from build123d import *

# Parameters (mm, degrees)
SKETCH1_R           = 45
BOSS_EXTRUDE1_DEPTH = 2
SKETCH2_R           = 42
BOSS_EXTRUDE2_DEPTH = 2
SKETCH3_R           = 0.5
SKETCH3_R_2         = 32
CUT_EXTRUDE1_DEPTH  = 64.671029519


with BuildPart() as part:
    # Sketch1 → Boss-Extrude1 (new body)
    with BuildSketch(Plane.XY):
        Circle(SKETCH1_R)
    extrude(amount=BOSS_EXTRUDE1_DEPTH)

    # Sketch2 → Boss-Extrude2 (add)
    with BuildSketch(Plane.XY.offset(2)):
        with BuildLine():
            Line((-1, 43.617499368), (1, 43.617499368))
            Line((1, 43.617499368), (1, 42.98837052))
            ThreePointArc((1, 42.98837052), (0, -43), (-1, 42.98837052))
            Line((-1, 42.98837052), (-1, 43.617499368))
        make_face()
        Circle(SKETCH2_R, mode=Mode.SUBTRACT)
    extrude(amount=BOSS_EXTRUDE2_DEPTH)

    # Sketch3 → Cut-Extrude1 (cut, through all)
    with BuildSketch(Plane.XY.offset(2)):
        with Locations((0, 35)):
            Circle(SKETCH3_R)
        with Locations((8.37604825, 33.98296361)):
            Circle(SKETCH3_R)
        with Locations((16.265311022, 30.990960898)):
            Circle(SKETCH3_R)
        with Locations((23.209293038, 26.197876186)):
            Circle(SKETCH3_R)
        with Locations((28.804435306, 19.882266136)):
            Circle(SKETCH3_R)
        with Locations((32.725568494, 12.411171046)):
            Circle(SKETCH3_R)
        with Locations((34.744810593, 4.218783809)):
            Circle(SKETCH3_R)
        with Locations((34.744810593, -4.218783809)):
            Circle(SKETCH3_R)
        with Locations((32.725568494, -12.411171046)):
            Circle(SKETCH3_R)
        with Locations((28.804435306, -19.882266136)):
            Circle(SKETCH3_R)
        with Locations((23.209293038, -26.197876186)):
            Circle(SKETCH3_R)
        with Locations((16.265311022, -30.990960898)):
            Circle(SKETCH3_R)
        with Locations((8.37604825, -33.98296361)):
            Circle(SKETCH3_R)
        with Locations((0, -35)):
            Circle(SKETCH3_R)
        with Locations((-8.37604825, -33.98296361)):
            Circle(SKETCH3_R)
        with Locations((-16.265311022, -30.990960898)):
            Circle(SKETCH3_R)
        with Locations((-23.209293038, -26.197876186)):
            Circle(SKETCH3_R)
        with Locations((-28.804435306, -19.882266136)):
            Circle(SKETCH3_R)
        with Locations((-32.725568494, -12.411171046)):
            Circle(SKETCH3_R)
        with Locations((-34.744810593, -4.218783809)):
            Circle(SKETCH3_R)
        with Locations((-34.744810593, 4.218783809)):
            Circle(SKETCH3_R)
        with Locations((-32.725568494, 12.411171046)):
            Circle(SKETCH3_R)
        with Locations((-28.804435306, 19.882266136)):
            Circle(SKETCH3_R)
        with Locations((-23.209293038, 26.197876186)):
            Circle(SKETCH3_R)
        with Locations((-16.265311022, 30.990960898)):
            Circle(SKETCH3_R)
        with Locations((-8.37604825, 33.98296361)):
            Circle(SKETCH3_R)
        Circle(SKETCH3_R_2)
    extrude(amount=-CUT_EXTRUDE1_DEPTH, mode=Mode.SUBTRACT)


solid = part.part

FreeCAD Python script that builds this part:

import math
import FreeCAD as App
import Part
import Sketcher
from FreeCAD import Vector

doc = App.newDocument("Part")
body = doc.addObject("PartDesign::Body", "Body")

sketch1 = doc.addObject("Sketcher::SketchObject", "Sketch")
body.addObject(sketch1)
sketch1.AttachmentSupport = (doc.XY_Plane, [""])
sketch1.MapMode = "FlatFace"
sketch1.addGeometry(Part.Circle(Vector(0, 0, 0), Vector(0, 0, 1), 45), False)
sketch1.addConstraint(Sketcher.Constraint("Coincident", 0, 3, -1, 1))
sketch1.addConstraint(Sketcher.Constraint("Diameter", 0, 90.0))
pad1 = doc.addObject("PartDesign::Pad", "Pad")
body.addObject(pad1)
pad1.Profile = sketch1
pad1.Length = 2

sketch2 = doc.addObject("Sketcher::SketchObject", "Sketch001")
body.addObject(sketch2)
sketch2.AttachmentSupport = (doc.XY_Plane, [""])
sketch2.MapMode = "FlatFace"
sketch2.AttachmentOffset = App.Placement(Vector(0, 0, 2), App.Rotation())
sketch2.addGeometry(Part.LineSegment(Vector(1, 43.617499, 0), Vector(-1, 43.617499, 0)), False)
sketch2.addGeometry(Part.LineSegment(Vector(-1, 43.617499, 0), Vector(-1, 42.988371, 0)), False)
sketch2.addGeometry(Part.ArcOfCircle(Part.Circle(Vector(0, 0, 0), Vector(0, 0, 1), 43), math.radians(91.33258), math.radians(448.66742)), False)
sketch2.addGeometry(Part.LineSegment(Vector(1, 42.988371, 0), Vector(1, 43.617499, 0)), False)
sketch2.addGeometry(Part.Circle(Vector(0, 0, 0), Vector(0, 0, 1), 42), False)
sketch2.addConstraint(Sketcher.Constraint("Coincident", 0, 2, 1, 1))
sketch2.addConstraint(Sketcher.Constraint("Coincident", 1, 2, 2, 1))
sketch2.addConstraint(Sketcher.Constraint("Coincident", 2, 2, 3, 1))
sketch2.addConstraint(Sketcher.Constraint("Coincident", 3, 2, 0, 1))
sketch2.addConstraint(Sketcher.Constraint("Horizontal", 0))
sketch2.addConstraint(Sketcher.Constraint("Vertical", 1))
sketch2.addConstraint(Sketcher.Constraint("Vertical", 3))
sketch2.addConstraint(Sketcher.Constraint("Coincident", 2, 3, -1, 1))
sketch2.addConstraint(Sketcher.Constraint("Coincident", 4, 3, -1, 1))
sketch2.addConstraint(Sketcher.Constraint("Horizontal", 1, 2, 2, 2))
sketch2.addConstraint(Sketcher.Constraint("Diameter", 4, 84.0))
sketch2.addConstraint(Sketcher.Constraint("Radius", 2, 43.0))
sketch2.addConstraint(Sketcher.Constraint("DistanceX", 0, 2, 0, 1, 2.0))
sketch2.addConstraint(Sketcher.Constraint("DistanceY", 1, 2, 1, 1, 0.629129))
pad2 = doc.addObject("PartDesign::Pad", "Pad001")
body.addObject(pad2)
pad2.Profile = sketch2
pad2.Length = 2

sketch3 = doc.addObject("Sketcher::SketchObject", "Sketch002")
body.addObject(sketch3)
sketch3.AttachmentSupport = (doc.XY_Plane, [""])
sketch3.MapMode = "FlatFace"
sketch3.AttachmentOffset = App.Placement(Vector(0, 0, 2), App.Rotation())
sketch3.addGeometry(Part.Circle(Vector(0, 35, 0), Vector(0, 0, 1), 0.5), False)
sketch3.addGeometry(Part.Circle(Vector(8.376048, 33.982964, 0), Vector(0, 0, 1), 0.5), False)
sketch3.addGeometry(Part.Circle(Vector(16.265311, 30.990961, 0), Vector(0, 0, 1), 0.5), False)
sketch3.addGeometry(Part.Circle(Vector(23.209293, 26.197876, 0), Vector(0, 0, 1), 0.5), False)
sketch3.addGeometry(Part.Circle(Vector(28.804435, 19.882266, 0), Vector(0, 0, 1), 0.5), False)
sketch3.addGeometry(Part.Circle(Vector(32.725568, 12.411171, 0), Vector(0, 0, 1), 0.5), False)
sketch3.addGeometry(Part.Circle(Vector(34.744811, 4.218784, 0), Vector(0, 0, 1), 0.5), False)
sketch3.addGeometry(Part.Circle(Vector(34.744811, -4.218784, 0), Vector(0, 0, 1), 0.5), False)
sketch3.addGeometry(Part.Circle(Vector(32.725568, -12.411171, 0), Vector(0, 0, 1), 0.5), False)
sketch3.addGeometry(Part.Circle(Vector(28.804435, -19.882266, 0), Vector(0, 0, 1), 0.5), False)
sketch3.addGeometry(Part.Circle(Vector(23.209293, -26.197876, 0), Vector(0, 0, 1), 0.5), False)
sketch3.addGeometry(Part.Circle(Vector(16.265311, -30.990961, 0), Vector(0, 0, 1), 0.5), False)
sketch3.addGeometry(Part.Circle(Vector(8.376048, -33.982964, 0), Vector(0, 0, 1), 0.5), False)
sketch3.addGeometry(Part.Circle(Vector(0, -35, 0), Vector(0, 0, 1), 0.5), False)
sketch3.addGeometry(Part.Circle(Vector(-8.376048, -33.982964, 0), Vector(0, 0, 1), 0.5), False)
sketch3.addGeometry(Part.Circle(Vector(-16.265311, -30.990961, 0), Vector(0, 0, 1), 0.5), False)
sketch3.addGeometry(Part.Circle(Vector(-23.209293, -26.197876, 0), Vector(0, 0, 1), 0.5), False)
sketch3.addGeometry(Part.Circle(Vector(-28.804435, -19.882266, 0), Vector(0, 0, 1), 0.5), False)
sketch3.addGeometry(Part.Circle(Vector(-32.725568, -12.411171, 0), Vector(0, 0, 1), 0.5), False)
sketch3.addGeometry(Part.Circle(Vector(-34.744811, -4.218784, 0), Vector(0, 0, 1), 0.5), False)
sketch3.addGeometry(Part.Circle(Vector(-34.744811, 4.218784, 0), Vector(0, 0, 1), 0.5), False)
sketch3.addGeometry(Part.Circle(Vector(-32.725568, 12.411171, 0), Vector(0, 0, 1), 0.5), False)
sketch3.addGeometry(Part.Circle(Vector(-28.804435, 19.882266, 0), Vector(0, 0, 1), 0.5), False)
sketch3.addGeometry(Part.Circle(Vector(-23.209293, 26.197876, 0), Vector(0, 0, 1), 0.5), False)
sketch3.addGeometry(Part.Circle(Vector(-16.265311, 30.990961, 0), Vector(0, 0, 1), 0.5), False)
sketch3.addGeometry(Part.Circle(Vector(-8.376048, 33.982964, 0), Vector(0, 0, 1), 0.5), False)
sketch3.addGeometry(Part.Circle(Vector(0, 0, 0), Vector(0, 0, 1), 32), False)
sketch3.addConstraint(Sketcher.Constraint("Coincident", 26, 3, -1, 1))
sketch3.addConstraint(Sketcher.Constraint("Equal", 0, 1))
sketch3.addConstraint(Sketcher.Constraint("Equal", 1, 2))
sketch3.addConstraint(Sketcher.Constraint("Equal", 2, 3))
sketch3.addConstraint(Sketcher.Constraint("Equal", 3, 4))
sketch3.addConstraint(Sketcher.Constraint("Equal", 4, 5))
sketch3.addConstraint(Sketcher.Constraint("Equal", 5, 6))
sketch3.addConstraint(Sketcher.Constraint("Equal", 6, 7))
sketch3.addConstraint(Sketcher.Constraint("Equal", 7, 8))
sketch3.addConstraint(Sketcher.Constraint("Equal", 8, 9))
sketch3.addConstraint(Sketcher.Constraint("Equal", 9, 10))
sketch3.addConstraint(Sketcher.Constraint("Equal", 10, 11))
sketch3.addConstraint(Sketcher.Constraint("Equal", 11, 12))
sketch3.addConstraint(Sketcher.Constraint("Equal", 12, 13))
sketch3.addConstraint(Sketcher.Constraint("Equal", 13, 14))
sketch3.addConstraint(Sketcher.Constraint("Equal", 14, 15))
sketch3.addConstraint(Sketcher.Constraint("Equal", 15, 16))
sketch3.addConstraint(Sketcher.Constraint("Equal", 16, 17))
sketch3.addConstraint(Sketcher.Constraint("Equal", 17, 18))
sketch3.addConstraint(Sketcher.Constraint("Equal", 18, 19))
sketch3.addConstraint(Sketcher.Constraint("Equal", 19, 20))
sketch3.addConstraint(Sketcher.Constraint("Equal", 20, 21))
sketch3.addConstraint(Sketcher.Constraint("Equal", 21, 22))
sketch3.addConstraint(Sketcher.Constraint("Equal", 22, 23))
sketch3.addConstraint(Sketcher.Constraint("Equal", 23, 24))
sketch3.addConstraint(Sketcher.Constraint("Equal", 24, 25))
sketch3.addConstraint(Sketcher.Constraint("Symmetric", 0, 3, 13, 3, -1, 1))
sketch3.addConstraint(Sketcher.Constraint("Symmetric", 1, 3, 14, 3, -1, 1))
sketch3.addConstraint(Sketcher.Constraint("Symmetric", 2, 3, 15, 3, -1, 1))
sketch3.addConstraint(Sketcher.Constraint("Symmetric", 3, 3, 16, 3, -1, 1))
sketch3.addConstraint(Sketcher.Constraint("Symmetric", 4, 3, 17, 3, -1, 1))
sketch3.addConstraint(Sketcher.Constraint("Symmetric", 5, 3, 18, 3, -1, 1))
sketch3.addConstraint(Sketcher.Constraint("Symmetric", 6, 3, 19, 3, -1, 1))
sketch3.addConstraint(Sketcher.Constraint("Symmetric", 7, 3, 20, 3, -1, 1))
sketch3.addConstraint(Sketcher.Constraint("Symmetric", 8, 3, 21, 3, -1, 1))
sketch3.addConstraint(Sketcher.Constraint("Symmetric", 9, 3, 22, 3, -1, 1))
sketch3.addConstraint(Sketcher.Constraint("Symmetric", 10, 3, 23, 3, -1, 1))
sketch3.addConstraint(Sketcher.Constraint("Symmetric", 11, 3, 24, 3, -1, 1))
sketch3.addConstraint(Sketcher.Constraint("Symmetric", 12, 3, 25, 3, -1, 1))
sketch3.addConstraint(Sketcher.Constraint("Symmetric", 12, 3, 14, 3, -2))
sketch3.addConstraint(Sketcher.Constraint("Symmetric", 11, 3, 15, 3, -2))
sketch3.addConstraint(Sketcher.Constraint("Symmetric", 10, 3, 16, 3, -2))
sketch3.addConstraint(Sketcher.Constraint("Symmetric", 9, 3, 17, 3, -2))
sketch3.addConstraint(Sketcher.Constraint("Symmetric", 8, 3, 18, 3, -2))
sketch3.addConstraint(Sketcher.Constraint("Symmetric", 7, 3, 19, 3, -2))
sketch3.addConstraint(Sketcher.Constraint("PointOnObject", 0, 3, -2))
sketch3.addConstraint(Sketcher.Constraint("Diameter", 0, 1.0))
sketch3.addConstraint(Sketcher.Constraint("Diameter", 26, 64.0))
sketch3.addConstraint(Sketcher.Constraint("DistanceY", -1, 1, 0, 3, 35.0))
sketch3.addConstraint(Sketcher.Constraint("DistanceX", 2, 3, 6, 3, 18.4795))
sketch3.addConstraint(Sketcher.Constraint("DistanceX", -1, 1, 1, 3, 8.376048))
sketch3.addConstraint(Sketcher.Constraint("DistanceX", -1, 1, 2, 3, 16.265311))
sketch3.addConstraint(Sketcher.Constraint("DistanceY", -1, 1, 2, 3, 30.990961))
sketch3.addConstraint(Sketcher.Constraint("DistanceX", -1, 1, 5, 3, 32.725568))
sketch3.addConstraint(Sketcher.Constraint("DistanceY", -1, 1, 5, 3, 12.411171))
sketch3.addConstraint(Sketcher.Constraint("DistanceY", 4, 3, 3, 3, 6.31561))
sketch3.addConstraint(Sketcher.Constraint("DistanceY", 6, 3, 1, 3, 29.76418))
sketch3.addConstraint(Sketcher.Constraint("DistanceY", 7, 3, 4, 3, 24.10105))
sketch3.addConstraint(Sketcher.Constraint("DistanceX", 14, 3, 10, 3, 31.585341))
sketch3.addConstraint(Sketcher.Constraint("DistanceY", -1, 1, 1, 3, 33.982964))
sketch3.addConstraint(Sketcher.Constraint("DistanceX", -1, 1, 4, 3, 28.804435))
pocket1 = doc.addObject("PartDesign::Pocket", "Pocket")
body.addObject(pocket1)
pocket1.Profile = sketch3
pocket1.Type = "ThroughAll"

doc.recompute()
